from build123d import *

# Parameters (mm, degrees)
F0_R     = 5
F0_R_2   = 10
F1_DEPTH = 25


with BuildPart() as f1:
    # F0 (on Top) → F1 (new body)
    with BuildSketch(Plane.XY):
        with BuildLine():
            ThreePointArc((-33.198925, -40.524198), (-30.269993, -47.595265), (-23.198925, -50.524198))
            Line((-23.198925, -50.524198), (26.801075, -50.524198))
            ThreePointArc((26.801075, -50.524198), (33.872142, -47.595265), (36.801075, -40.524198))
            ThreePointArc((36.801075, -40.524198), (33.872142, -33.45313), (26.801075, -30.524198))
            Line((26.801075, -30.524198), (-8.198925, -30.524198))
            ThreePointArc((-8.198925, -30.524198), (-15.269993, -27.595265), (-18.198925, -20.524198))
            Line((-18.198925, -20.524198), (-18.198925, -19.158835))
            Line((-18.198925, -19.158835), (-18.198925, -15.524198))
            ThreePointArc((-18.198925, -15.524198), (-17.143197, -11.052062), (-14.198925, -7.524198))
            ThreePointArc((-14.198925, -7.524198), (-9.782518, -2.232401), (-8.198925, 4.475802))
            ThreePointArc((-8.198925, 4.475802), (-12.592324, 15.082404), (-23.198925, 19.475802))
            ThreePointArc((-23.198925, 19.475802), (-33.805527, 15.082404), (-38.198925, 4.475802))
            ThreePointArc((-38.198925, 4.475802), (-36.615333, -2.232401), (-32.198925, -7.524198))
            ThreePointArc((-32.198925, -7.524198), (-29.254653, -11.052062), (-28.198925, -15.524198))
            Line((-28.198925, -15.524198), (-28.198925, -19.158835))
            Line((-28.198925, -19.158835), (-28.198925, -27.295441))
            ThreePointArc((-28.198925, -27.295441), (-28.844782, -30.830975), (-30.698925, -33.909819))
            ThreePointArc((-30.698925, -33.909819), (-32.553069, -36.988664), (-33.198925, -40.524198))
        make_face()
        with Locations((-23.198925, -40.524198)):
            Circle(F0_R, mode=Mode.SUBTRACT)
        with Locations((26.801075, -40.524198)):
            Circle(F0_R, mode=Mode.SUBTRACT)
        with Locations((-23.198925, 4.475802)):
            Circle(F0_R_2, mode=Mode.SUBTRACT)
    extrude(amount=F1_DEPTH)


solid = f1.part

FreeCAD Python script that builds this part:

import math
import FreeCAD as App
import Part
import Sketcher
from FreeCAD import Vector
Q = App.Units.Quantity

doc = App.newDocument("Part")
params = doc.addObject("Spreadsheet::Sheet", "Params")
for row, (alias, value) in enumerate([
    ("sketch1_diameter", "10 mm"),
    ("sketch1_diameter2", "20 mm"),
    ("sketch1_radius", "15.000001 mm"),
    ("sketch1_width", "50 mm"),
    ("sketch1_height", "5 mm"),
    ("pad1_length", "25 mm"),
], start=1):
    params.set(f"A{row}", alias)
    params.set(f"B{row}", "=" + value)
    params.setAlias(f"B{row}", alias)

body = doc.addObject("PartDesign::Body", "Body")

# Sketch on XY plane
sketch1 = body.newObject("Sketcher::SketchObject", "Sketch")
sketch1.AttachmentSupport = (doc.getObject("XY_Plane"), [""])
sketch1.MapMode = "FlatFace"
sketch1.addGeometry([
    Part.ArcOfCircle(Part.Circle(Vector(-23.2, -40.5, 0), Vector(0, 0, 1), 10), math.radians(-180), math.radians(-90)),  # 0
    Part.LineSegment(Vector(-23.2, -50.5, 0), Vector(26.8, -50.5, 0)),  # 1
    Part.ArcOfCircle(Part.Circle(Vector(26.8, -40.5, 0), Vector(0, 0, 1), 10), math.radians(-90), math.radians(0)),  # 2
    Part.ArcOfCircle(Part.Circle(Vector(26.8, -40.5, 0), Vector(0, 0, 1), 10), math.radians(0), math.radians(90)),  # 3
    Part.LineSegment(Vector(26.8, -30.5, 0), Vector(-8.2, -30.5, 0)),  # 4
    Part.ArcOfCircle(Part.Circle(Vector(-8.2, -20.5, 0), Vector(0, 0, 1), 10), math.radians(-180), math.radians(-90)),  # 5
    Part.LineSegment(Vector(-18.2, -20.5, 0), Vector(-18.2, -15.5, 0)),  # 6
    Part.ArcOfCircle(Part.Circle(Vector(-8.2, -15.5, 0), Vector(0, 0, 1), 10), math.radians(127), math.radians(180)),  # 7
    Part.ArcOfCircle(Part.Circle(Vector(-23.2, 4.5, 0), Vector(0, 0, 1), 15), math.radians(-53), math.radians(0)),  # 8
    Part.ArcOfCircle(Part.Circle(Vector(-23.2, 4.5, 0), Vector(0, 0, 1), 15), math.radians(0), math.radians(90)),  # 9
    Part.ArcOfCircle(Part.Circle(Vector(-23.2, 4.5, 0), Vector(0, 0, 1), 15), math.radians(90), math.radians(180)),  # 10
    Part.ArcOfCircle(Part.Circle(Vector(-23.2, 4.5, 0), Vector(0, 0, 1), 15), math.radians(-180), math.radians(-127)),  # 11
    Part.ArcOfCircle(Part.Circle(Vector(-38.2, -15.5, 0), Vector(0, 0, 1), 10), math.radians(0), math.radians(53)),  # 12
    Part.LineSegment(Vector(-28.2, -15.5, 0), Vector(-28.2, -27.3, 0)),  # 13
    Part.ArcOfCircle(Part.Circle(Vector(-38.2, -27.3, 0), Vector(0, 0, 1), 10), math.radians(-41), math.radians(0)),  # 14
    Part.ArcOfCircle(Part.Circle(Vector(-23.2, -40.5, 0), Vector(0, 0, 1), 10), math.radians(139), math.radians(180)),  # 15
    Part.Circle(Vector(-23.2, -40.5, 0), Vector(0, 0, 1), 5),  # 16
    Part.Circle(Vector(26.8, -40.5, 0), Vector(0, 0, 1), 5),  # 17
    Part.Circle(Vector(-23.2, 4.5, 0), Vector(0, 0, 1), 10),  # 18
], False)
sketch1.addConstraint([
    Sketcher.Constraint("Tangent", 0, 2, 1, 1),
    Sketcher.Constraint("Tangent", 1, 2, 2, 1),
    Sketcher.Constraint("Tangent", 2, 2, 3, 1),
    Sketcher.Constraint("Tangent", 3, 2, 4, 1),
    Sketcher.Constraint("Tangent", 4, 2, 5, 2),
    Sketcher.Constraint("Tangent", 5, 1, 6, 1),
    Sketcher.Constraint("Tangent", 6, 2, 7, 2),
    Sketcher.Constraint("Tangent", 7, 1, 8, 1),
    Sketcher.Constraint("Tangent", 8, 2, 9, 1),
    Sketcher.Constraint("Tangent", 9, 2, 10, 1),
    Sketcher.Constraint("Tangent", 10, 2, 11, 1),
    Sketcher.Constraint("Tangent", 11, 2, 12, 2),
    Sketcher.Constraint("Tangent", 12, 1, 13, 1),
    Sketcher.Constraint("Tangent", 13, 2, 14, 2),
    Sketcher.Constraint("Tangent", 14, 1, 15, 1),
    Sketcher.Constraint("Tangent", 15, 2, 0, 1),
    Sketcher.Constraint("Horizontal", 1),
    Sketcher.Constraint("Horizontal", 4),
    Sketcher.Constraint("Vertical", 6),
    Sketcher.Constraint("Vertical", 13),
    Sketcher.Constraint("Coincident", 10, 3, 8, 3),
    Sketcher.Constraint("Coincident", 16, 3, 0, 3),
    Sketcher.Constraint("Coincident", 17, 3, 2, 3),
    Sketcher.Constraint("Coincident", 18, 3, 9, 3),
    Sketcher.Constraint("Equal", 0, 2),
    Sketcher.Constraint("Equal", 2, 3),
    Sketcher.Constraint("Equal", 3, 5),
    Sketcher.Constraint("Equal", 5, 7),
    Sketcher.Constraint("Equal", 9, 11),
    Sketcher.Constraint("Equal", 7, 12),
    Sketcher.Constraint("Equal", 2, 14),
    Sketcher.Constraint("Equal", 16, 17),
    Sketcher.Constraint("Equal", 12, 18),
    Sketcher.Constraint("Horizontal", 7, 3, 12, 3),
    Sketcher.Constraint("Horizontal", 17, 3, 2, 2),
    Sketcher.Constraint("Horizontal", 18, 3, 8, 2),
    Sketcher.Constraint("Horizontal", 8, 2, 10, 2),
    Sketcher.Constraint("Horizontal", 2, 2, 15, 2),
    Sketcher.Constraint("Vertical", 0, 3, 9, 3),
    Sketcher.Constraint("Vertical", 4, 2, 8, 2),
    Sketcher.Constraint("Vertical", 0, 2, 9, 2),
    Sketcher.Constraint("Diameter", 16, Q("10 mm")),
    Sketcher.Constraint("Diameter", 18, Q("20 mm")),
    Sketcher.Constraint("Radius", 9, Q("15.000001 mm")),
    Sketcher.Constraint("DistanceX", 1, 1, 1, 2, Q("50 mm")),
    Sketcher.Constraint("DistanceY", 6, 1, 6, 2, Q("5 mm")),
    Sketcher.Constraint("DistanceX", 14, 3, 15, 3, Q("15 mm")),
    Sketcher.Constraint("DistanceY", 3, 3, -1, 1, Q("40.524199 mm")),
    Sketcher.Constraint("DistanceX", 14, 3, -1, 1, Q("38.198929 mm")),
])
sketch1.setExpression("Constraints[41]", "Params.sketch1_diameter")
sketch1.setExpression("Constraints[42]", "Params.sketch1_diameter2")
sketch1.setExpression("Constraints[43]", "Params.sketch1_radius")
sketch1.setExpression("Constraints[44]", "Params.sketch1_width")
sketch1.setExpression("Constraints[45]", "Params.sketch1_height")
pad1 = body.newObject("PartDesign::Pad", "Pad")
pad1.Profile = sketch1
pad1.setExpression("Length", "Params.pad1_length")

doc.recompute()
